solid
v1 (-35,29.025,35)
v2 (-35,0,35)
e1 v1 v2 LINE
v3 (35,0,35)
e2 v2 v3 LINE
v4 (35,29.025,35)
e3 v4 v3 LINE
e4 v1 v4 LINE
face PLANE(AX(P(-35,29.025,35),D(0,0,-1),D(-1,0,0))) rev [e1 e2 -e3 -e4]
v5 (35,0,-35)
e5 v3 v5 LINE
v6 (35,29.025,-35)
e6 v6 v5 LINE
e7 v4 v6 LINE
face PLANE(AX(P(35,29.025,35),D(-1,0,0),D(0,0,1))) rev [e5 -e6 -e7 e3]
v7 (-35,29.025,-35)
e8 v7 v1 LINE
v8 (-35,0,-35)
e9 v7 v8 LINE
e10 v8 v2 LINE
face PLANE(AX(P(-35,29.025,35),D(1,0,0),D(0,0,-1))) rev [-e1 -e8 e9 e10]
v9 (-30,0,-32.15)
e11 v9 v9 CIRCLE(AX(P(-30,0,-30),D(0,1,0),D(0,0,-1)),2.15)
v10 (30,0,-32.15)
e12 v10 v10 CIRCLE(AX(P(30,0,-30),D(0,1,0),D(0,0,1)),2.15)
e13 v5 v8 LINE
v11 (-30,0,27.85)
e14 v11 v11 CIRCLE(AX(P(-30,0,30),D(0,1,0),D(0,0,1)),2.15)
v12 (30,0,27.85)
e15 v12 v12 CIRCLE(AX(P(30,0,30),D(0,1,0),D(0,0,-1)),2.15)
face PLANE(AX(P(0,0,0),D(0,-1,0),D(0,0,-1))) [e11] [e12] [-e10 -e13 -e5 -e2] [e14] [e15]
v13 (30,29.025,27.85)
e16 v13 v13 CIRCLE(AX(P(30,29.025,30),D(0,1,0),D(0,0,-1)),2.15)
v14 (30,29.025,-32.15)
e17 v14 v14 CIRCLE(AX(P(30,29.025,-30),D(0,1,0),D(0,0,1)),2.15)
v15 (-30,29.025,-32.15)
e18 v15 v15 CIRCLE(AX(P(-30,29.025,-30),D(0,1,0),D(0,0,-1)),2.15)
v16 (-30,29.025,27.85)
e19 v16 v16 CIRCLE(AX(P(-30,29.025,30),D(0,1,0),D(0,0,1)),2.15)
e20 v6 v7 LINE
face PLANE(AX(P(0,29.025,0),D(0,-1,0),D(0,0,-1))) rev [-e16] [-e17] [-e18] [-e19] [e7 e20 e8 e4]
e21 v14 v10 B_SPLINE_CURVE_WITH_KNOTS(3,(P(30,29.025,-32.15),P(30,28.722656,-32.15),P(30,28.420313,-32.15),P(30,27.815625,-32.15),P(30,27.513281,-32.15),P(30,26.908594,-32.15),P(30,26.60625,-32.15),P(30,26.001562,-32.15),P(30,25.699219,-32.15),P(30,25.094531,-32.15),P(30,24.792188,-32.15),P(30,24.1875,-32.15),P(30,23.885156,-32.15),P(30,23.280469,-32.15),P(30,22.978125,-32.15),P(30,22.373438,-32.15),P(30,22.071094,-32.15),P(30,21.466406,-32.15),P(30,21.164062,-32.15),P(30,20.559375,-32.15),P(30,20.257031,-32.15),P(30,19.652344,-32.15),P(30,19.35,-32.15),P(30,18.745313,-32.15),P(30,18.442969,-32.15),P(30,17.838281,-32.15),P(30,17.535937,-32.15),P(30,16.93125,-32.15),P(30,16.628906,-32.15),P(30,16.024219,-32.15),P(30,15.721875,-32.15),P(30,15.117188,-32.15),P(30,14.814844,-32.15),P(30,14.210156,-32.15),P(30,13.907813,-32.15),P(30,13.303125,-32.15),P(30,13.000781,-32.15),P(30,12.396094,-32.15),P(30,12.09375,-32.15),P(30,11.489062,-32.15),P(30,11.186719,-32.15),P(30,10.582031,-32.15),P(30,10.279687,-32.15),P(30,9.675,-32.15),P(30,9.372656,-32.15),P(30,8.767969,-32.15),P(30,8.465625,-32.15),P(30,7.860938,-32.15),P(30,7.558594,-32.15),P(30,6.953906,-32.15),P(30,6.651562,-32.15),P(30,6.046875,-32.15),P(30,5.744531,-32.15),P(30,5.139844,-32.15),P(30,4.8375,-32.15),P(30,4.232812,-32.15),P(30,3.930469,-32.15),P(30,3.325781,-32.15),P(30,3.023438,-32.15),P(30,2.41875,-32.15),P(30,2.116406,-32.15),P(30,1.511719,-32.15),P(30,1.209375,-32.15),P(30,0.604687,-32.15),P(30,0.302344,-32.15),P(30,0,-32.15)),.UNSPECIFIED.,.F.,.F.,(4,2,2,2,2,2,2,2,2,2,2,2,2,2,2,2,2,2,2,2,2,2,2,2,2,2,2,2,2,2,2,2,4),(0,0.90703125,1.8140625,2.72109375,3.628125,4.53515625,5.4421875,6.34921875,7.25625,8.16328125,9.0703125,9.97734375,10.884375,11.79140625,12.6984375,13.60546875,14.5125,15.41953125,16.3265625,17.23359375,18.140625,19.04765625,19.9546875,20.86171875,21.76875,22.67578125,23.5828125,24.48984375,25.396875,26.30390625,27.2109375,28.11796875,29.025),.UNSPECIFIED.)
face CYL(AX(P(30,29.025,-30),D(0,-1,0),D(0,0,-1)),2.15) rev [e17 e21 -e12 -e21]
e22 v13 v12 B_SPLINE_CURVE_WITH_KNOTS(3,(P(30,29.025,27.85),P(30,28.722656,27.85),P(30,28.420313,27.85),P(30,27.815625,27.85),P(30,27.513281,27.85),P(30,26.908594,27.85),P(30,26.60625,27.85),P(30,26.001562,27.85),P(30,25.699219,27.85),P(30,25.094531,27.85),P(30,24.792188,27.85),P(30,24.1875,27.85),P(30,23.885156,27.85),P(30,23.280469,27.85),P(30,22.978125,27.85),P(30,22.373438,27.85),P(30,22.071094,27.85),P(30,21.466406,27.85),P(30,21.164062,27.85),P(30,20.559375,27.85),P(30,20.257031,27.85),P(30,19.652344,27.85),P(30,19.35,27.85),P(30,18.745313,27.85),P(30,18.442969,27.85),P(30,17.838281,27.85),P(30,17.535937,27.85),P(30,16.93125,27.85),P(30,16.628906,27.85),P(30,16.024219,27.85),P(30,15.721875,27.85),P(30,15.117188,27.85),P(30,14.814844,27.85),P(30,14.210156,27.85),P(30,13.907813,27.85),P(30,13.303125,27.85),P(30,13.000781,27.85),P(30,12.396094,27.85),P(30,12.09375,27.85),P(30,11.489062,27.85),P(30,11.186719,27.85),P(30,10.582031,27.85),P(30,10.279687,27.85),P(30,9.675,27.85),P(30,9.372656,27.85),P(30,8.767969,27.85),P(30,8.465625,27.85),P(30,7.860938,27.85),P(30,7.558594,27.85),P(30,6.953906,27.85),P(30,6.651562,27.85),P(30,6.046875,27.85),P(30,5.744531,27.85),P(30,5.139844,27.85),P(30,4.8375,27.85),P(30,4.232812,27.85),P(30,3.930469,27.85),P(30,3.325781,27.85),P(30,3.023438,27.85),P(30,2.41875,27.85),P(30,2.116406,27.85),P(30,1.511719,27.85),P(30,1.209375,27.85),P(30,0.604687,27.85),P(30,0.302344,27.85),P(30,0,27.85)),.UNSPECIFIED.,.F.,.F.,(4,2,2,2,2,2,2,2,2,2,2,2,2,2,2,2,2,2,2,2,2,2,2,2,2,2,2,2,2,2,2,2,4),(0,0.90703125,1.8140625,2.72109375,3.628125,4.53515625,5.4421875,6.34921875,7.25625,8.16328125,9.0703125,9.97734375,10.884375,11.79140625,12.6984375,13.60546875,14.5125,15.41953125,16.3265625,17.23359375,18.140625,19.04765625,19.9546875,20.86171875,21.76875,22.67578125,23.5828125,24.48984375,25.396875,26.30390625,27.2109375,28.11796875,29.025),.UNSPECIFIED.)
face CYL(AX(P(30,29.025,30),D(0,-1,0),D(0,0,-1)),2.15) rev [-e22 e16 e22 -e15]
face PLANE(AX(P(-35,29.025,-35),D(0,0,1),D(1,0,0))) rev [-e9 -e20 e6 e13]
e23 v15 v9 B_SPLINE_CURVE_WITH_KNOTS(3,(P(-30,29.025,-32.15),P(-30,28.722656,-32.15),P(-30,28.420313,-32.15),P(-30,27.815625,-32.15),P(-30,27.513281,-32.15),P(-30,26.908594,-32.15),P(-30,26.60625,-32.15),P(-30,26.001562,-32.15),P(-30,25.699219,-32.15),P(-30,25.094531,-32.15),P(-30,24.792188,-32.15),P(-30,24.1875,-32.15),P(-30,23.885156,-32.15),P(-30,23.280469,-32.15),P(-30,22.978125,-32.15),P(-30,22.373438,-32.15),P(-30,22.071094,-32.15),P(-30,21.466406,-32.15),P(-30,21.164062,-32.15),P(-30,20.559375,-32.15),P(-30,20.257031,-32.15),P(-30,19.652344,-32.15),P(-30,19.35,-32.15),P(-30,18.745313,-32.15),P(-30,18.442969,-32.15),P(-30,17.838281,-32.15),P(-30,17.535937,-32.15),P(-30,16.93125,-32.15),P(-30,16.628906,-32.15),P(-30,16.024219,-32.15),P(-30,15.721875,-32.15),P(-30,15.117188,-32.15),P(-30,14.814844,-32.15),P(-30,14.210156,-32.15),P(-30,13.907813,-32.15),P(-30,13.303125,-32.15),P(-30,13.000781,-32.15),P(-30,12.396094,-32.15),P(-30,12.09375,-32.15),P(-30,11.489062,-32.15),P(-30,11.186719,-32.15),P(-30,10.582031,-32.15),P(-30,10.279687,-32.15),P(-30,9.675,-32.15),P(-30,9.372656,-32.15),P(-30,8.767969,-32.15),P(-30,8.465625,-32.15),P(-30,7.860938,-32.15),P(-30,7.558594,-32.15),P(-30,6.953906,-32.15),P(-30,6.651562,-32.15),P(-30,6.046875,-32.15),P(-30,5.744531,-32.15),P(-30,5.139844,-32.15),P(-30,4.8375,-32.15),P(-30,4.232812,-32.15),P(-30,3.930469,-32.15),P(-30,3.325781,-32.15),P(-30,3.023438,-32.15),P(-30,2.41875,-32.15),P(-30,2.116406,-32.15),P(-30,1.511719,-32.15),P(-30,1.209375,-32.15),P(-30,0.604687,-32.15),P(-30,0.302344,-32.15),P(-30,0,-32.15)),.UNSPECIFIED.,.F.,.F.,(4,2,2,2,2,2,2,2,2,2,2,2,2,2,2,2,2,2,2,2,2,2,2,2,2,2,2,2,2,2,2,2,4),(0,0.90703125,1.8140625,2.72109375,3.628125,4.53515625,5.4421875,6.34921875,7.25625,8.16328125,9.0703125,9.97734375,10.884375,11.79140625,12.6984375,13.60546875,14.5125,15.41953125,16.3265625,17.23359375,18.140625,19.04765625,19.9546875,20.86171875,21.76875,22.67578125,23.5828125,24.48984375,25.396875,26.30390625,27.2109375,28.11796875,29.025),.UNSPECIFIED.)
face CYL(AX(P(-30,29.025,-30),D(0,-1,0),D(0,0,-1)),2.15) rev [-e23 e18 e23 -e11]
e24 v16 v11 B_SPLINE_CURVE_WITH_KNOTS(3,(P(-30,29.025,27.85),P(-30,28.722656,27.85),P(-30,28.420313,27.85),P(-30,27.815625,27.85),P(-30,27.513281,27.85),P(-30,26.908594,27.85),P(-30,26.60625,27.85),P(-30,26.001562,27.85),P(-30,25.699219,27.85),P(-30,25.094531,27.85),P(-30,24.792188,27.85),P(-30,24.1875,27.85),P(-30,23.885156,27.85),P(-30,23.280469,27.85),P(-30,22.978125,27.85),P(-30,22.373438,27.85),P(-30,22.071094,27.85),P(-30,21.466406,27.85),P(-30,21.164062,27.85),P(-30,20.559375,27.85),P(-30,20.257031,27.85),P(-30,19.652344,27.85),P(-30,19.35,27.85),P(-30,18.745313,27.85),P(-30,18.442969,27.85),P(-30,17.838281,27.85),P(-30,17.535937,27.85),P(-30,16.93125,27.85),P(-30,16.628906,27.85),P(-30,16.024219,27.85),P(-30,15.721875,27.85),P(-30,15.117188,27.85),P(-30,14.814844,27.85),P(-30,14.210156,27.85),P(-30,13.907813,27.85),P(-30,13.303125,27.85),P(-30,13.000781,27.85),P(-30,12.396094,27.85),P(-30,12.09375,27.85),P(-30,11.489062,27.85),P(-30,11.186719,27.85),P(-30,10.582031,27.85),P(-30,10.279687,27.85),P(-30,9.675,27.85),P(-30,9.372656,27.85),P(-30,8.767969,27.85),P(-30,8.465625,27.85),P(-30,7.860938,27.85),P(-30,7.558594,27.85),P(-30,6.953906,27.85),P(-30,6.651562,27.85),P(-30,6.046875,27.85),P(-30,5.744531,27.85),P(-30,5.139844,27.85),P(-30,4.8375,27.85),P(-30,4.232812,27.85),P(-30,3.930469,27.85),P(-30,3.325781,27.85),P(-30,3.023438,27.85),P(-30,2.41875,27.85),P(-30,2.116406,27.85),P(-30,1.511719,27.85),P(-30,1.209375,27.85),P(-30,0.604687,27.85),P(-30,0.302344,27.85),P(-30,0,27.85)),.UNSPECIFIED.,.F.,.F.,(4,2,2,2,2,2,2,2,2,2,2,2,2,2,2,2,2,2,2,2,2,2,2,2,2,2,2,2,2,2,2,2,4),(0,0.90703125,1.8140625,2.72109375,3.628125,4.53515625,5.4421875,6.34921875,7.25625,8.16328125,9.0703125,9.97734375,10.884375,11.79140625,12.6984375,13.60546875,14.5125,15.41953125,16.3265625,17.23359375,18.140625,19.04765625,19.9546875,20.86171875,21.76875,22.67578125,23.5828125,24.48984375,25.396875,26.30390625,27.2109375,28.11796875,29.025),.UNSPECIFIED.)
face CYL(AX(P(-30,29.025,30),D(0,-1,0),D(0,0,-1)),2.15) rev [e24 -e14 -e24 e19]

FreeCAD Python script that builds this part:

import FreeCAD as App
import Part
import Sketcher
from FreeCAD import Vector


def add_polygon(sketch, points):
    """Adds a closed chain of lines whose ends are joined by coincident constraints."""
    first, n = sketch.GeometryCount, len(points)
    for a, b in zip(points, points[1:] + points[:1]):
        sketch.addGeometry(Part.LineSegment(App.Vector(*a, 0), App.Vector(*b, 0)), False)
    for i in range(n):
        sketch.addConstraint(Sketcher.Constraint("Coincident", first + i, 2, first + (i + 1) % n, 1))

doc = App.newDocument("Part")
params = doc.addObject("Spreadsheet::Sheet", "Params")
for row, (alias, value) in enumerate([
    ("sketch1_diameter", "4.3 mm"),
    ("sketch1_width", "70 mm"),
    ("pad1_length", "29.025 mm"),
], start=1):
    params.set(f"A{row}", alias)
    params.set(f"B{row}", "=" + value)
    params.setAlias(f"B{row}", alias)

body = doc.addObject("PartDesign::Body", "Body")

sketch1 = body.newObject("Sketcher::SketchObject", "Sketch")
sketch1.AttachmentSupport = (doc.getObject("XZ_Plane"), [""])
sketch1.MapMode = "FlatFace"
add_polygon(sketch1, [(-35, -35), (-35, 35), (35, 35), (35, -35)])
sketch1.addGeometry(Part.Circle(Vector(-30, 30, 0), Vector(0, 0, 1), 2.1), False)
sketch1.addGeometry(Part.Circle(Vector(30, 30, 0), Vector(0, 0, 1), 2.1), False)
sketch1.addGeometry(Part.Circle(Vector(-30, -30, 0), Vector(0, 0, 1), 2.1), False)
sketch1.addGeometry(Part.Circle(Vector(30, -30, 0), Vector(0, 0, 1), 2.1), False)
sketch1.addConstraint([
    Sketcher.Constraint("Vertical", 0),
    Sketcher.Constraint("Horizontal", 1),
    Sketcher.Constraint("Vertical", 2),
    Sketcher.Constraint("Horizontal", 3),
    Sketcher.Constraint("Equal", 4, 5),
    Sketcher.Constraint("Equal", 5, 6),
    Sketcher.Constraint("Equal", 6, 7),
    Sketcher.Constraint("Symmetric", 5, 3, 6, 3, -1, 1),
    Sketcher.Constraint("Symmetric", 4, 3, 7, 3, -1, 1),
    Sketcher.Constraint("Symmetric", 0, 2, 2, 2, -1, 1),
    Sketcher.Constraint("Symmetric", 4, 3, 5, 3, -2),
    Sketcher.Constraint("Equal", 3, 0),
    Sketcher.Constraint("Diameter", 4, 4.3),
    Sketcher.Constraint("DistanceX", 1, 1, 1, 2, 70.0),
    Sketcher.Constraint("DistanceX", 4, 3, -1, 1, 30.0),
    Sketcher.Constraint("DistanceY", -1, 1, 4, 3, 30.0),
])
sketch1.setExpression("Constraints[16]", "Params.sketch1_diameter")
sketch1.setExpression("Constraints[17]", "Params.sketch1_width")
pad1 = body.newObject("PartDesign::Pad", "Pad")
pad1.Profile = sketch1
pad1.setExpression("Length", "Params.pad1_length")
pad1.Reversed = True

doc.recompute()
